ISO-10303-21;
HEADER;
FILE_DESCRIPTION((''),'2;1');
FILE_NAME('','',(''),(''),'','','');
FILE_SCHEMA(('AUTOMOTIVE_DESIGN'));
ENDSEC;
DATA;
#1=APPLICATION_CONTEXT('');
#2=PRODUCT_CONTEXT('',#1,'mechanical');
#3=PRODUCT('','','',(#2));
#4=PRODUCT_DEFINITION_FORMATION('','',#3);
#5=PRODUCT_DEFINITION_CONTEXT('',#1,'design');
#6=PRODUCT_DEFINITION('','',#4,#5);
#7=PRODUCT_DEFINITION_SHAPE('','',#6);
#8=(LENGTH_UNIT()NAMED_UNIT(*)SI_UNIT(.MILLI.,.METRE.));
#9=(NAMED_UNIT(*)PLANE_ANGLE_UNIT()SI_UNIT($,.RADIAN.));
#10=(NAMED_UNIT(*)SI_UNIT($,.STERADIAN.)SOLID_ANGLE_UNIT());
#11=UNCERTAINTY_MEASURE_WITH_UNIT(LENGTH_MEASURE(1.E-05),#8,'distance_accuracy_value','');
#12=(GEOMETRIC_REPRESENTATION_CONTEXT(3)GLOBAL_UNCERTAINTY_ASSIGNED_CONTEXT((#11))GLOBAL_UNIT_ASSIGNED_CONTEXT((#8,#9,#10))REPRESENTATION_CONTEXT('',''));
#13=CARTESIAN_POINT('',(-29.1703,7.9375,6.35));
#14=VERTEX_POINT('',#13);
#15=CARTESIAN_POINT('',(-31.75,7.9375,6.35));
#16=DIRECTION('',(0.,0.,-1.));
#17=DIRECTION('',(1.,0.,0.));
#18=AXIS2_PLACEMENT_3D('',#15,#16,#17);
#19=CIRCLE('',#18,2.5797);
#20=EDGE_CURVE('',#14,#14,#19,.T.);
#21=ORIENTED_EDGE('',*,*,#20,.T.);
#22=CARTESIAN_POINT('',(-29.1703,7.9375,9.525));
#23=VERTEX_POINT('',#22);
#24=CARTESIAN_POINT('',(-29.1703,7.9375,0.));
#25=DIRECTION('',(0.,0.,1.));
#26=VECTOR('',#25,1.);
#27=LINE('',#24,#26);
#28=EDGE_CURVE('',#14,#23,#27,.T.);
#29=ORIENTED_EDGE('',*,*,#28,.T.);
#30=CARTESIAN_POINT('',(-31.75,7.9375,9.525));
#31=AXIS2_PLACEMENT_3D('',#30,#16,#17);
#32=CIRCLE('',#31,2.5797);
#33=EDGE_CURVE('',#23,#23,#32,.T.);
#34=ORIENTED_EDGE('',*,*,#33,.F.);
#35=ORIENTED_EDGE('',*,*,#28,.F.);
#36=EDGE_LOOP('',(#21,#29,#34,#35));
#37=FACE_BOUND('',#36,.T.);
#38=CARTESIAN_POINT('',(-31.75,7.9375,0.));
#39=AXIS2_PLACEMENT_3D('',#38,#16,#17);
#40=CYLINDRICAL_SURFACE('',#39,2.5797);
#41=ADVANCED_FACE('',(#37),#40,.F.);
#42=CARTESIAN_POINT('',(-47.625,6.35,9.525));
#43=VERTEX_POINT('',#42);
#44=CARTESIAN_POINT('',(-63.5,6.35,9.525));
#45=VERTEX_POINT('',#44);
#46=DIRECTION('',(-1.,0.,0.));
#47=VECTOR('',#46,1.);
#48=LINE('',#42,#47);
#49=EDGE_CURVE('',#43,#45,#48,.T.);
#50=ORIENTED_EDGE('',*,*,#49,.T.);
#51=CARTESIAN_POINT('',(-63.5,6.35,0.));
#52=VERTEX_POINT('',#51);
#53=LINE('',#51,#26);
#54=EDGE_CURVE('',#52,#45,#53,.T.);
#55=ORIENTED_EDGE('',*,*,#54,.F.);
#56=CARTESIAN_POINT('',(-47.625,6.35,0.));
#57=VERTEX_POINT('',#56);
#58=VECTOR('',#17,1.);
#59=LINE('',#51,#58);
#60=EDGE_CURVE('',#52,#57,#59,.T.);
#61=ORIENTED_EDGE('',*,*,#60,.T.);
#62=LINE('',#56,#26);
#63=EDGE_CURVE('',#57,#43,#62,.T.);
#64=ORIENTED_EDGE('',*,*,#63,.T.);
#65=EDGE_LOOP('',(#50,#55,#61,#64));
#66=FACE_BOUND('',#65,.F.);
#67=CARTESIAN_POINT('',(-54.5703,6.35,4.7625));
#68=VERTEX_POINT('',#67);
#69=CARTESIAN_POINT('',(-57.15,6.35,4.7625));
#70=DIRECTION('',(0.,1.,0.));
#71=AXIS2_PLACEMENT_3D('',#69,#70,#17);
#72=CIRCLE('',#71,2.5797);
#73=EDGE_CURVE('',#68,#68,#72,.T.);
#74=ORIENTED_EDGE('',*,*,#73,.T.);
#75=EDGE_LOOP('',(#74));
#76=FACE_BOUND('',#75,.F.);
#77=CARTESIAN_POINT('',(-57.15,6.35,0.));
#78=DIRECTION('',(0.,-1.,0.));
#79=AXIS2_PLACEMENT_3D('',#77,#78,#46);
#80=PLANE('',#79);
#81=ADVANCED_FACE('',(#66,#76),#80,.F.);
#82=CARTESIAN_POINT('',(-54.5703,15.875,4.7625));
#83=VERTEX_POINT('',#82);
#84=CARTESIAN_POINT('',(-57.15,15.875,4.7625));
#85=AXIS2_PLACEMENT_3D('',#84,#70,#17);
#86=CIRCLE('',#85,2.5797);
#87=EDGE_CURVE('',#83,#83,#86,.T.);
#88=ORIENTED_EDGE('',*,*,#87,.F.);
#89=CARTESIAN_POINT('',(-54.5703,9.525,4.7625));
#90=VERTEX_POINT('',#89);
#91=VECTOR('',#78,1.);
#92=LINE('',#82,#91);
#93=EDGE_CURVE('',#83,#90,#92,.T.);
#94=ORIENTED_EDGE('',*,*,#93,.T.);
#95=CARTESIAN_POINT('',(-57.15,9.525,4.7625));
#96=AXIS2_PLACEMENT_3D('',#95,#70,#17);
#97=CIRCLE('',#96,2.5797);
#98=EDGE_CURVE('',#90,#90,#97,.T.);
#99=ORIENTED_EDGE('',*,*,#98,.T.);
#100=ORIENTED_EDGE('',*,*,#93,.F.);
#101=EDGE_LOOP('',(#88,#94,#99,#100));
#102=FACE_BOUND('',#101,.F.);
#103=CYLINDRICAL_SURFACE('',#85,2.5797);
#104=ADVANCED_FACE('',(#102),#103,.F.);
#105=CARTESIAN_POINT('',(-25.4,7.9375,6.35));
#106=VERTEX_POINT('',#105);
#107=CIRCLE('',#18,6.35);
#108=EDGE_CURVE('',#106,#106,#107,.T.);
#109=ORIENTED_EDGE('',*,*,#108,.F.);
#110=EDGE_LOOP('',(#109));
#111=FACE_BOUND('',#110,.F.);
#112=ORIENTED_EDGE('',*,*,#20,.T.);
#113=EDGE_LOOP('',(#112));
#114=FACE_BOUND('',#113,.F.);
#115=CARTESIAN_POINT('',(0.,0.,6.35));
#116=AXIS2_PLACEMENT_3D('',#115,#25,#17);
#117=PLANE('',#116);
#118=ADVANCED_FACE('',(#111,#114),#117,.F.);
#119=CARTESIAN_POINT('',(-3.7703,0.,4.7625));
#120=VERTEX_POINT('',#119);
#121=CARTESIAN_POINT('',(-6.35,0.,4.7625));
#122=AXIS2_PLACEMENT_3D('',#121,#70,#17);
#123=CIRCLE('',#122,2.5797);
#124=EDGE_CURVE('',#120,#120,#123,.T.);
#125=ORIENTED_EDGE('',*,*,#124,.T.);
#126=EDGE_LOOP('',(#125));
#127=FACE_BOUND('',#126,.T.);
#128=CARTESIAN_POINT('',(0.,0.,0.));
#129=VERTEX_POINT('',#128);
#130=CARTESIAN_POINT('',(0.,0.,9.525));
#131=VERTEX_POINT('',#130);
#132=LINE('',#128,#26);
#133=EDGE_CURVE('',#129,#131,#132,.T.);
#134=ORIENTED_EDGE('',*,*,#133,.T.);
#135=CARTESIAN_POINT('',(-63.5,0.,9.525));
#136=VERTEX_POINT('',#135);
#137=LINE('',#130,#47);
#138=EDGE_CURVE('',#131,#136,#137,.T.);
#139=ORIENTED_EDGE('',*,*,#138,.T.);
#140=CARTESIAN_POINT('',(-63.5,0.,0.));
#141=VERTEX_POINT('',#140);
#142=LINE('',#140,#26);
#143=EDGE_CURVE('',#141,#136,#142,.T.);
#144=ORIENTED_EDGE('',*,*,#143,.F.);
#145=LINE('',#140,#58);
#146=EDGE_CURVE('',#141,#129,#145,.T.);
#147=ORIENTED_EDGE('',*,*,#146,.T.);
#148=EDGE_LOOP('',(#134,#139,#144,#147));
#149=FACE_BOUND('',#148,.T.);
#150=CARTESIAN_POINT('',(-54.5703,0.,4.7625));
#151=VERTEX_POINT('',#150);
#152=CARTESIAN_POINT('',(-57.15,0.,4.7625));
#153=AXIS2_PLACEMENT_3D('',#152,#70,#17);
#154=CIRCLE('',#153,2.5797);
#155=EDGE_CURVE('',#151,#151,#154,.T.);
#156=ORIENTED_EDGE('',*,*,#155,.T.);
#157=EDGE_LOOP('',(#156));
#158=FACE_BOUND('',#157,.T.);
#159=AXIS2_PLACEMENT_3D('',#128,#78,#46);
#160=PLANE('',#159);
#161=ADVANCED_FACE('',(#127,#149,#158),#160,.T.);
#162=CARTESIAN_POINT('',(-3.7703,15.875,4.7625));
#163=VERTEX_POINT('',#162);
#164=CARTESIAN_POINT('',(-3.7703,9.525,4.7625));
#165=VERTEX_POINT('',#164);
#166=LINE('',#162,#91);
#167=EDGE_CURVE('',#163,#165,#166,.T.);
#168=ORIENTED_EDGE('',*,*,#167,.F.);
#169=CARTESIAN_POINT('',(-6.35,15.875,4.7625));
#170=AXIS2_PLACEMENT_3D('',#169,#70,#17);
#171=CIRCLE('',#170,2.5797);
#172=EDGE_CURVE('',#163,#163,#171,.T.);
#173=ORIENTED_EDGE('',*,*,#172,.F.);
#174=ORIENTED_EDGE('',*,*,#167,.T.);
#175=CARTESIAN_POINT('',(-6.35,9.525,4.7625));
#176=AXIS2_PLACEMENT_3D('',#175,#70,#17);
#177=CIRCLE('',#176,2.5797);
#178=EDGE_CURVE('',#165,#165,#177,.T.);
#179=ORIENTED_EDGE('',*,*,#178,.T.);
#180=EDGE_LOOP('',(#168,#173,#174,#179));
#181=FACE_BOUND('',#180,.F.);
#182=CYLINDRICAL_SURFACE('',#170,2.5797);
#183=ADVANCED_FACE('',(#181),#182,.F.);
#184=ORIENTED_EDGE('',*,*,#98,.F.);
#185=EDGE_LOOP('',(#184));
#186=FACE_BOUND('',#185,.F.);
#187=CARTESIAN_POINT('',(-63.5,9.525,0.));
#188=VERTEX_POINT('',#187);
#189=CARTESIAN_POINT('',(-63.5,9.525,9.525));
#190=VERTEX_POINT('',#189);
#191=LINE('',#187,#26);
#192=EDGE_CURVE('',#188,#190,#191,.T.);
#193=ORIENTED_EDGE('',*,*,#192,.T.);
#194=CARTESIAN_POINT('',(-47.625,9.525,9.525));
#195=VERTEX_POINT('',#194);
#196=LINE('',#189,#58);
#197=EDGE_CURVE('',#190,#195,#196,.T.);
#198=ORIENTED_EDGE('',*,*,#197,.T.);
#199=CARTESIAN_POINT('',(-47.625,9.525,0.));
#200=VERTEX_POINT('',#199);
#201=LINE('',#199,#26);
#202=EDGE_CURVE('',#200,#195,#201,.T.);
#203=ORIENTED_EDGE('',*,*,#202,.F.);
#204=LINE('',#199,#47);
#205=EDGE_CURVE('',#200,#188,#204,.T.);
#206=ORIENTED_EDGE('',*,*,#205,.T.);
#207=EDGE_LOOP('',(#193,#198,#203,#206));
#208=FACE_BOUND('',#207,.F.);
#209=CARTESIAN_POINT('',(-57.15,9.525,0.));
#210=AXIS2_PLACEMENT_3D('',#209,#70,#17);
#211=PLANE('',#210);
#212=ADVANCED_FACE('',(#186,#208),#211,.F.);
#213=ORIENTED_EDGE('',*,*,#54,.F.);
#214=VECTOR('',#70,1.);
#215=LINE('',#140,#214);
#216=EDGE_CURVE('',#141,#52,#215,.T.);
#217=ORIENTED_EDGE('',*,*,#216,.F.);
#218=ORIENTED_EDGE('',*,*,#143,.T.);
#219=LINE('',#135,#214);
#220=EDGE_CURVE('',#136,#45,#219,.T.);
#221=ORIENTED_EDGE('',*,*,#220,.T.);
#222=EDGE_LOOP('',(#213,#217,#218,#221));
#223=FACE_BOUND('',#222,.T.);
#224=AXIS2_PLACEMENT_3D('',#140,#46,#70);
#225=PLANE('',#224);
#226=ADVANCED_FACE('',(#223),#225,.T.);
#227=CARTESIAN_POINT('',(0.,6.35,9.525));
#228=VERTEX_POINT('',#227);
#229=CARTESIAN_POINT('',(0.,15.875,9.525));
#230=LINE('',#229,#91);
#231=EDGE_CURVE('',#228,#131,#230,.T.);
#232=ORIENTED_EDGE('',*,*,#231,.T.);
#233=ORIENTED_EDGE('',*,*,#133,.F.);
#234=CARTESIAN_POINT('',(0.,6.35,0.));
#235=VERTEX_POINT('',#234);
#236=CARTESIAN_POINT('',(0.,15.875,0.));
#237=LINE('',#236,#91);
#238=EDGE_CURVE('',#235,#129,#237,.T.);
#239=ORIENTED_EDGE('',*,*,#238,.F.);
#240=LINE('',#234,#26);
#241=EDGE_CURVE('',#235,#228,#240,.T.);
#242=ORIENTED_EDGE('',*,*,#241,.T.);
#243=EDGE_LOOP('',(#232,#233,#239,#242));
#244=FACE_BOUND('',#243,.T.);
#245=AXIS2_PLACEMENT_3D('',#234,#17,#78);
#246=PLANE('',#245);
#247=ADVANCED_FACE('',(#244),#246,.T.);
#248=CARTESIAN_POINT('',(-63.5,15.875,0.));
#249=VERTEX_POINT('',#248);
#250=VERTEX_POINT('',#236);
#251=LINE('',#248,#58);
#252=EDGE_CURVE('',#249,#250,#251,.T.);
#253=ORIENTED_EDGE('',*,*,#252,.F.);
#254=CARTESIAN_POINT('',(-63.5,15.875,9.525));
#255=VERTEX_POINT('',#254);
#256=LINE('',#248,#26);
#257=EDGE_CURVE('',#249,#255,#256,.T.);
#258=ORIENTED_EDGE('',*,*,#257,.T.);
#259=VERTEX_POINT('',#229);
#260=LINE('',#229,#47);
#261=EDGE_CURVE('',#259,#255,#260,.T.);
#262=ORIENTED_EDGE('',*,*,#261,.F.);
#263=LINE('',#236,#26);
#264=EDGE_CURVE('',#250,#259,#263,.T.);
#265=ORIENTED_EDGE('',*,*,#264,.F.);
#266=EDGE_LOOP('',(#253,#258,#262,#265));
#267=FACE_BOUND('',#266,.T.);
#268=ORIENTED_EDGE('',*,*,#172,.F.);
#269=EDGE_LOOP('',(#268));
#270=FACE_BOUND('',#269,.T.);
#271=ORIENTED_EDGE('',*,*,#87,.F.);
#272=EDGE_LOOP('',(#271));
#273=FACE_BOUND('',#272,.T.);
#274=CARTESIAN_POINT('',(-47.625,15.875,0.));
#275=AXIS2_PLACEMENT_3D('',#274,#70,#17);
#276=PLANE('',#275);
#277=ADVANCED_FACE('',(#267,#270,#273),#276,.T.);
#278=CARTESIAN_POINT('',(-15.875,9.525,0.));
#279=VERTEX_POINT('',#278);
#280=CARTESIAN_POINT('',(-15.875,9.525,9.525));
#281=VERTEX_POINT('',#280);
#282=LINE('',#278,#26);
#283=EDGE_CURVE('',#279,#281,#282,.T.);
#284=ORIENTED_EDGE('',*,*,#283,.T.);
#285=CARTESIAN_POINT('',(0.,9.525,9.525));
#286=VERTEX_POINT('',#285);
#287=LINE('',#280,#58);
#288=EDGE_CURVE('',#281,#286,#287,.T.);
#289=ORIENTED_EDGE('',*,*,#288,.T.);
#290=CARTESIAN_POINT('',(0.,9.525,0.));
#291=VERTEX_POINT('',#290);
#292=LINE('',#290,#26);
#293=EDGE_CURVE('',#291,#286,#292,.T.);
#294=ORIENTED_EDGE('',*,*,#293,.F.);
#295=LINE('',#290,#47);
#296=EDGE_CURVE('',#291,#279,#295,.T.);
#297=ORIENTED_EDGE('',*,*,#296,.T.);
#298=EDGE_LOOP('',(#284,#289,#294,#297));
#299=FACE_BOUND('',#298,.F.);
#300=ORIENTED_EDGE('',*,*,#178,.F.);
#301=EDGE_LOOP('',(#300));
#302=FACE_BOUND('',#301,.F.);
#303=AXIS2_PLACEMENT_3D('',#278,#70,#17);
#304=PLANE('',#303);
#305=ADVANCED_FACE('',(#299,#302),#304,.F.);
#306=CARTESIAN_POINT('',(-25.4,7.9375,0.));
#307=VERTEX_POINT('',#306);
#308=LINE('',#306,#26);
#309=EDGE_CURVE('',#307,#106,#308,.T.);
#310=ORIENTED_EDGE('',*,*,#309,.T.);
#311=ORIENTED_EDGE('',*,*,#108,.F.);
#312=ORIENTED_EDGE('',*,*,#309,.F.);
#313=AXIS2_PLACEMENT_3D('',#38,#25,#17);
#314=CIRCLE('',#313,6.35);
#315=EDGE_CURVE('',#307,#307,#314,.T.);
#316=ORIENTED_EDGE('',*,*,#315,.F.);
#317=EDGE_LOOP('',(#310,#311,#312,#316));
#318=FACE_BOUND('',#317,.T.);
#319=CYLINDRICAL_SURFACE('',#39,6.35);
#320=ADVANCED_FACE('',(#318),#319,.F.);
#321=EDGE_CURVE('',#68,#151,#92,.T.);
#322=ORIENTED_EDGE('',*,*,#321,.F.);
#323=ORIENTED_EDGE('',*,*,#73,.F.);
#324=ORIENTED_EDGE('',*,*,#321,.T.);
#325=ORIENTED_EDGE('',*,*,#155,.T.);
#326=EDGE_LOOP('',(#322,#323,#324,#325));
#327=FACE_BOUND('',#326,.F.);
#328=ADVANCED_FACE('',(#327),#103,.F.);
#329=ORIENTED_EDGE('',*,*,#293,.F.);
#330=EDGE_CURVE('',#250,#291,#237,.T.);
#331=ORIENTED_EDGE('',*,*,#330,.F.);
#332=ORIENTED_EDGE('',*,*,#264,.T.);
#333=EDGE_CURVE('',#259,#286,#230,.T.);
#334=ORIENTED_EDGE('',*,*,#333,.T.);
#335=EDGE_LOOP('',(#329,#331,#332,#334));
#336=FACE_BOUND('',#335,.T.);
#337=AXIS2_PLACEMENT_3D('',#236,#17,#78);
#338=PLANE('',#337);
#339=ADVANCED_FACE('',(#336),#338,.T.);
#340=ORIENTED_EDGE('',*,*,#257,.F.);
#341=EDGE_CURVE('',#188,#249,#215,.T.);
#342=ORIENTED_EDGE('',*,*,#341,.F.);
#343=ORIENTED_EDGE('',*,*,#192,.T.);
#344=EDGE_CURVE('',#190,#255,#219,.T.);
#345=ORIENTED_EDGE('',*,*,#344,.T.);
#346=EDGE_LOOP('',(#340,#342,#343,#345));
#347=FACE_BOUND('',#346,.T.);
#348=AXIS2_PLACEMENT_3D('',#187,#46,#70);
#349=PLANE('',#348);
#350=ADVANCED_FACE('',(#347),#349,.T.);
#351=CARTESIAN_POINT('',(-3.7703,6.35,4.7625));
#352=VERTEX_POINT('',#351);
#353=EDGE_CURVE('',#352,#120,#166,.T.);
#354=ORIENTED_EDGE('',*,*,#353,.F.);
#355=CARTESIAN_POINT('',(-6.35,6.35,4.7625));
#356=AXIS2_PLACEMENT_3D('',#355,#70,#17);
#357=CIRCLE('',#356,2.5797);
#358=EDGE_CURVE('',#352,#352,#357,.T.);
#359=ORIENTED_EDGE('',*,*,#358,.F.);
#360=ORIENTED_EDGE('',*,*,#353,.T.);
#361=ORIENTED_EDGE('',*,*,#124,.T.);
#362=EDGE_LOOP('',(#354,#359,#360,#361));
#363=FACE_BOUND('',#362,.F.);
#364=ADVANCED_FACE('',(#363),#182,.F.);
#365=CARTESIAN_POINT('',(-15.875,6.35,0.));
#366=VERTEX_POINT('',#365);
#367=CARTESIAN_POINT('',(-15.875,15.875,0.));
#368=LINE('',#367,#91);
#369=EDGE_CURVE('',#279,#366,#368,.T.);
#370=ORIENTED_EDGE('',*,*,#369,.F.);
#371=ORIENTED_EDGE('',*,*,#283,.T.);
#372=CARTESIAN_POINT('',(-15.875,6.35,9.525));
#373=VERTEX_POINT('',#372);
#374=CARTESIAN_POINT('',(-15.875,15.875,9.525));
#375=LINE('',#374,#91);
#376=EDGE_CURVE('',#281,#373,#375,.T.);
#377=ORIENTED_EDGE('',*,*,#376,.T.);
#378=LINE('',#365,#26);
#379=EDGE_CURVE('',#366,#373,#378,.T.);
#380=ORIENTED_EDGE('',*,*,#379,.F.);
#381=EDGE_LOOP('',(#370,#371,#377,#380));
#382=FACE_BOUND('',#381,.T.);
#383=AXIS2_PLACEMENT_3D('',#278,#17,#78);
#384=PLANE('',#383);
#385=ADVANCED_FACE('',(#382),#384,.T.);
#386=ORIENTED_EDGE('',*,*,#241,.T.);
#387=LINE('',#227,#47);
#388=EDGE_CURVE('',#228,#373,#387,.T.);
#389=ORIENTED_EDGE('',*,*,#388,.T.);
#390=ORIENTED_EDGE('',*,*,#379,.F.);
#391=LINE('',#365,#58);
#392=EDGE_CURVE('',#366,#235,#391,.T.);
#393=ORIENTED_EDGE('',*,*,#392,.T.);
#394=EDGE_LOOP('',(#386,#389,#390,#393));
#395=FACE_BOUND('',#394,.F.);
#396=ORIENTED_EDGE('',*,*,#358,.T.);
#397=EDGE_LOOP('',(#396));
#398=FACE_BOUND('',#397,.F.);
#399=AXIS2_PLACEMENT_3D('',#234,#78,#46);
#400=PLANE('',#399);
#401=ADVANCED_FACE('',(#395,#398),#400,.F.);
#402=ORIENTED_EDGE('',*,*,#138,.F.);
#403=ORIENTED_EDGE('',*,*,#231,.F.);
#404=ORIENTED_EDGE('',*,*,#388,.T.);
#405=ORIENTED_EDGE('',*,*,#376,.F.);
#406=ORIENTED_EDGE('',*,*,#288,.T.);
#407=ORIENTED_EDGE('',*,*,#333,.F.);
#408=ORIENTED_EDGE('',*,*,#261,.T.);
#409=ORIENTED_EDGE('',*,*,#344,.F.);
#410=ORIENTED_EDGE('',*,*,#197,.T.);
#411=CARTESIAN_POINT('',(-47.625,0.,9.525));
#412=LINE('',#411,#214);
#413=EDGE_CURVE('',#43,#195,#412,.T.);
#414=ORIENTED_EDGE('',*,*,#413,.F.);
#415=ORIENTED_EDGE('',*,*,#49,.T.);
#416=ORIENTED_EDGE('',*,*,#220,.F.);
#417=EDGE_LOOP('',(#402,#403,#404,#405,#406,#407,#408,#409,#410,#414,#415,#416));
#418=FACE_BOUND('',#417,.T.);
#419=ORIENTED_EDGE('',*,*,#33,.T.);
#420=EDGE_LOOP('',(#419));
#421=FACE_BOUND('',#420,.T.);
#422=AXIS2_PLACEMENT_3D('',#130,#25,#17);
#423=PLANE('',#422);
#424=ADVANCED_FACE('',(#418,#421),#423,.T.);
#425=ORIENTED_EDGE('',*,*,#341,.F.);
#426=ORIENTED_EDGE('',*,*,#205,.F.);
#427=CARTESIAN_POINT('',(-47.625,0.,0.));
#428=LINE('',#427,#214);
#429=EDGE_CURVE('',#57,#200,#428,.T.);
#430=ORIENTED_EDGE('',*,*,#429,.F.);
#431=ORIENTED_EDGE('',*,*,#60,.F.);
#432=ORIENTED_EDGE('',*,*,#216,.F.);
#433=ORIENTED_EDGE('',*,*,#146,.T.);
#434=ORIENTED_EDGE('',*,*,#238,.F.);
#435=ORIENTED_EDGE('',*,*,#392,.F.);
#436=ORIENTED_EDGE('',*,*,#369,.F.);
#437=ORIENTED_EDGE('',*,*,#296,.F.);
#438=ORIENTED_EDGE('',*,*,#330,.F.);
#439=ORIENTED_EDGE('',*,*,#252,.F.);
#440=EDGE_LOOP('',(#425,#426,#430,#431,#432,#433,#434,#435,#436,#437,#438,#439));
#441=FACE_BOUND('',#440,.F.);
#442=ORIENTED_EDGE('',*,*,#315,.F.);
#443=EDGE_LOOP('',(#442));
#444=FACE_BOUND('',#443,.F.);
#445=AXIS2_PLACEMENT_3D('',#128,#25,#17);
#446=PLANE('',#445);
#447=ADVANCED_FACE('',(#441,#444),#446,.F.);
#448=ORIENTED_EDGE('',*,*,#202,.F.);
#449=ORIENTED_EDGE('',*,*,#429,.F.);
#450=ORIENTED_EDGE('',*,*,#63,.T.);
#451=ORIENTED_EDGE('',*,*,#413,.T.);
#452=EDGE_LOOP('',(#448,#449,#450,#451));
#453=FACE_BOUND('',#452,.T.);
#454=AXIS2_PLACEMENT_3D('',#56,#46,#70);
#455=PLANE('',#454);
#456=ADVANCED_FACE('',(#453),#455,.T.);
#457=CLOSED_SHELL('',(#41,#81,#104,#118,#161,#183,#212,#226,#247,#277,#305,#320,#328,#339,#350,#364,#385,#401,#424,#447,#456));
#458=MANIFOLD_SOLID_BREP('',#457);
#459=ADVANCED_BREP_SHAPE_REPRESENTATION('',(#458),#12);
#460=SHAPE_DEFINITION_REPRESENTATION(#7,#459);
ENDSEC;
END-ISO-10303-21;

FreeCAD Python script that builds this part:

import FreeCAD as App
import Part
import Sketcher
Q = App.Units.Quantity

doc = App.newDocument("Part")
body = doc.addObject("PartDesign::Body", "Body")

sketch1 = body.newObject("Sketcher::SketchObject", "Sketch")
sketch1.AttachmentSupport = (doc.getObject("XY_Plane"), [""])
sketch1.MapMode = "FlatFace"
sketch1.addGeometry([
    Part.LineSegment(App.Vector(0, 0, 0), App.Vector(0, 6.3, 0)),
    Part.LineSegment(App.Vector(0, 6.3, 0), App.Vector(-15.9, 6.3, 0)),
    Part.LineSegment(App.Vector(-15.9, 6.3, 0), App.Vector(-15.9, 9.5, 0)),
    Part.LineSegment(App.Vector(-15.9, 9.5, 0), App.Vector(0, 9.5, 0)),
    Part.LineSegment(App.Vector(0, 9.5, 0), App.Vector(0, 15.9, 0)),
    Part.LineSegment(App.Vector(0, 15.9, 0), App.Vector(-63.5, 15.9, 0)),
    Part.LineSegment(App.Vector(-63.5, 15.9, 0), App.Vector(-63.5, 9.5, 0)),
    Part.LineSegment(App.Vector(-63.5, 9.5, 0), App.Vector(-47.6, 9.5, 0)),
    Part.LineSegment(App.Vector(-47.6, 9.5, 0), App.Vector(-47.6, 6.3, 0)),
    Part.LineSegment(App.Vector(-47.6, 6.3, 0), App.Vector(-63.5, 6.3, 0)),
    Part.LineSegment(App.Vector(-63.5, 6.3, 0), App.Vector(-63.5, 0, 0)),
    Part.LineSegment(App.Vector(-63.5, 0, 0), App.Vector(0, 0, 0)),
    Part.Circle(App.Vector(-31.8, 7.9, 0), App.Vector(0, 0, 1), 2.6),
], False)
sketch1.addConstraint([
    Sketcher.Constraint("Coincident", 0, 2, 1, 1),
    Sketcher.Constraint("Coincident", 1, 2, 2, 1),
    Sketcher.Constraint("Coincident", 2, 2, 3, 1),
    Sketcher.Constraint("Coincident", 3, 2, 4, 1),
    Sketcher.Constraint("Coincident", 4, 2, 5, 1),
    Sketcher.Constraint("Coincident", 5, 2, 6, 1),
    Sketcher.Constraint("Coincident", 6, 2, 7, 1),
    Sketcher.Constraint("Coincident", 7, 2, 8, 1),
    Sketcher.Constraint("Coincident", 8, 2, 9, 1),
    Sketcher.Constraint("Coincident", 9, 2, 10, 1),
    Sketcher.Constraint("Coincident", 10, 2, 11, 1),
    Sketcher.Constraint("Coincident", 11, 2, 0, 1),
    Sketcher.Constraint("Vertical", 0),
    Sketcher.Constraint("Horizontal", 1),
    Sketcher.Constraint("Vertical", 2),
    Sketcher.Constraint("Horizontal", 3),
    Sketcher.Constraint("Vertical", 4),
    Sketcher.Constraint("Horizontal", 5),
    Sketcher.Constraint("Vertical", 6),
    Sketcher.Constraint("Horizontal", 7),
    Sketcher.Constraint("Vertical", 8),
    Sketcher.Constraint("Horizontal", 9),
    Sketcher.Constraint("Vertical", 10),
    Sketcher.Constraint("Horizontal", 11),
    Sketcher.Constraint("Coincident", 11, 2, -1, 1),
    Sketcher.Constraint("PointOnObject", 3, 2, -2),
    Sketcher.Constraint("Horizontal", 3, 2, 6, 2),
    Sketcher.Constraint("Horizontal", 1, 2, 8, 2),
    Sketcher.Constraint("Vertical", 6, 2, 9, 2),
    Sketcher.Constraint("Equal", 3, 7),
    Sketcher.Constraint("Equal", 0, 4),
    Sketcher.Constraint("Diameter", 12, Q("0.203126 in")),
    Sketcher.Constraint("DistanceX", 5, 2, 5, 1, Q("2.5 in")),
    Sketcher.Constraint("DistanceY", 0, 1, 0, 2, Q("0.25 in")),
    Sketcher.Constraint("DistanceX", 1, 2, 1, 1, Q("0.625 in")),
    Sketcher.Constraint("DistanceY", 2, 1, 2, 2, Q("0.125 in")),
    Sketcher.Constraint("DistanceX", 12, 3, -1, 1, Q("1.25 in")),
    Sketcher.Constraint("DistanceY", -1, 1, 12, 3, Q("0.3125 in")),
])
pad1 = body.newObject("PartDesign::Pad", "Pad")
pad1.Profile = sketch1
pad1.Length = Q("0.375 in")

sketch2 = body.newObject("Sketcher::SketchObject", "Sketch001")
sketch2.AttachmentSupport = (doc.getObject("XY_Plane"), [""])
sketch2.MapMode = "FlatFace"
sketch2.addGeometry(Part.Circle(App.Vector(-32, 8, 0), App.Vector(0, 0, 1), 6), False)
sketch2.addConstraint([
    Sketcher.Constraint("Diameter", 0, Q("0.5 in")),
    Sketcher.Constraint("DistanceX", 0, 3, -1, 1, Q("1.25 in")),
    Sketcher.Constraint("DistanceY", -1, 1, 0, 3, Q("0.3125 in")),
])
pocket1 = body.newObject("PartDesign::Pocket", "Pocket")
pocket1.Profile = sketch2
pocket1.Length = Q("0.25 in")
pocket1.Reversed = True

sketch3 = body.newObject("Sketcher::SketchObject", "Sketch002")
sketch3.AttachmentSupport = (doc.getObject("XZ_Plane"), [""])
sketch3.MapMode = "FlatFace"
sketch3.AttachmentOffset = App.Placement(App.Vector(0, 0, -0.625 * 25.4), App.Rotation())
sketch3.addGeometry([
    Part.Circle(App.Vector(-6.3, 4.8, 0), App.Vector(0, 0, 1), 2.6),
    Part.Circle(App.Vector(-57.1, 4.8, 0), App.Vector(0, 0, 1), 2.6),
], False)
sketch3.addConstraint([
    Sketcher.Constraint("Equal", 0, 1),
    Sketcher.Constraint("Horizontal", 0, 3, 1, 3),
    Sketcher.Constraint("Diameter", 0, Q("0.203126 in")),
    Sketcher.Constraint("DistanceX", 0, 3, -1, 1, Q("0.25 in")),
    Sketcher.Constraint("DistanceY", -1, 1, 0, 3, Q("0.1875 in")),
    Sketcher.Constraint("DistanceX", 1, 3, 0, 3, Q("2 in")),
])
pocket2 = body.newObject("PartDesign::Pocket", "Pocket001")
pocket2.Profile = sketch3
pocket2.Type = "ThroughAll"
pocket2.Reversed = True

doc.recompute()
